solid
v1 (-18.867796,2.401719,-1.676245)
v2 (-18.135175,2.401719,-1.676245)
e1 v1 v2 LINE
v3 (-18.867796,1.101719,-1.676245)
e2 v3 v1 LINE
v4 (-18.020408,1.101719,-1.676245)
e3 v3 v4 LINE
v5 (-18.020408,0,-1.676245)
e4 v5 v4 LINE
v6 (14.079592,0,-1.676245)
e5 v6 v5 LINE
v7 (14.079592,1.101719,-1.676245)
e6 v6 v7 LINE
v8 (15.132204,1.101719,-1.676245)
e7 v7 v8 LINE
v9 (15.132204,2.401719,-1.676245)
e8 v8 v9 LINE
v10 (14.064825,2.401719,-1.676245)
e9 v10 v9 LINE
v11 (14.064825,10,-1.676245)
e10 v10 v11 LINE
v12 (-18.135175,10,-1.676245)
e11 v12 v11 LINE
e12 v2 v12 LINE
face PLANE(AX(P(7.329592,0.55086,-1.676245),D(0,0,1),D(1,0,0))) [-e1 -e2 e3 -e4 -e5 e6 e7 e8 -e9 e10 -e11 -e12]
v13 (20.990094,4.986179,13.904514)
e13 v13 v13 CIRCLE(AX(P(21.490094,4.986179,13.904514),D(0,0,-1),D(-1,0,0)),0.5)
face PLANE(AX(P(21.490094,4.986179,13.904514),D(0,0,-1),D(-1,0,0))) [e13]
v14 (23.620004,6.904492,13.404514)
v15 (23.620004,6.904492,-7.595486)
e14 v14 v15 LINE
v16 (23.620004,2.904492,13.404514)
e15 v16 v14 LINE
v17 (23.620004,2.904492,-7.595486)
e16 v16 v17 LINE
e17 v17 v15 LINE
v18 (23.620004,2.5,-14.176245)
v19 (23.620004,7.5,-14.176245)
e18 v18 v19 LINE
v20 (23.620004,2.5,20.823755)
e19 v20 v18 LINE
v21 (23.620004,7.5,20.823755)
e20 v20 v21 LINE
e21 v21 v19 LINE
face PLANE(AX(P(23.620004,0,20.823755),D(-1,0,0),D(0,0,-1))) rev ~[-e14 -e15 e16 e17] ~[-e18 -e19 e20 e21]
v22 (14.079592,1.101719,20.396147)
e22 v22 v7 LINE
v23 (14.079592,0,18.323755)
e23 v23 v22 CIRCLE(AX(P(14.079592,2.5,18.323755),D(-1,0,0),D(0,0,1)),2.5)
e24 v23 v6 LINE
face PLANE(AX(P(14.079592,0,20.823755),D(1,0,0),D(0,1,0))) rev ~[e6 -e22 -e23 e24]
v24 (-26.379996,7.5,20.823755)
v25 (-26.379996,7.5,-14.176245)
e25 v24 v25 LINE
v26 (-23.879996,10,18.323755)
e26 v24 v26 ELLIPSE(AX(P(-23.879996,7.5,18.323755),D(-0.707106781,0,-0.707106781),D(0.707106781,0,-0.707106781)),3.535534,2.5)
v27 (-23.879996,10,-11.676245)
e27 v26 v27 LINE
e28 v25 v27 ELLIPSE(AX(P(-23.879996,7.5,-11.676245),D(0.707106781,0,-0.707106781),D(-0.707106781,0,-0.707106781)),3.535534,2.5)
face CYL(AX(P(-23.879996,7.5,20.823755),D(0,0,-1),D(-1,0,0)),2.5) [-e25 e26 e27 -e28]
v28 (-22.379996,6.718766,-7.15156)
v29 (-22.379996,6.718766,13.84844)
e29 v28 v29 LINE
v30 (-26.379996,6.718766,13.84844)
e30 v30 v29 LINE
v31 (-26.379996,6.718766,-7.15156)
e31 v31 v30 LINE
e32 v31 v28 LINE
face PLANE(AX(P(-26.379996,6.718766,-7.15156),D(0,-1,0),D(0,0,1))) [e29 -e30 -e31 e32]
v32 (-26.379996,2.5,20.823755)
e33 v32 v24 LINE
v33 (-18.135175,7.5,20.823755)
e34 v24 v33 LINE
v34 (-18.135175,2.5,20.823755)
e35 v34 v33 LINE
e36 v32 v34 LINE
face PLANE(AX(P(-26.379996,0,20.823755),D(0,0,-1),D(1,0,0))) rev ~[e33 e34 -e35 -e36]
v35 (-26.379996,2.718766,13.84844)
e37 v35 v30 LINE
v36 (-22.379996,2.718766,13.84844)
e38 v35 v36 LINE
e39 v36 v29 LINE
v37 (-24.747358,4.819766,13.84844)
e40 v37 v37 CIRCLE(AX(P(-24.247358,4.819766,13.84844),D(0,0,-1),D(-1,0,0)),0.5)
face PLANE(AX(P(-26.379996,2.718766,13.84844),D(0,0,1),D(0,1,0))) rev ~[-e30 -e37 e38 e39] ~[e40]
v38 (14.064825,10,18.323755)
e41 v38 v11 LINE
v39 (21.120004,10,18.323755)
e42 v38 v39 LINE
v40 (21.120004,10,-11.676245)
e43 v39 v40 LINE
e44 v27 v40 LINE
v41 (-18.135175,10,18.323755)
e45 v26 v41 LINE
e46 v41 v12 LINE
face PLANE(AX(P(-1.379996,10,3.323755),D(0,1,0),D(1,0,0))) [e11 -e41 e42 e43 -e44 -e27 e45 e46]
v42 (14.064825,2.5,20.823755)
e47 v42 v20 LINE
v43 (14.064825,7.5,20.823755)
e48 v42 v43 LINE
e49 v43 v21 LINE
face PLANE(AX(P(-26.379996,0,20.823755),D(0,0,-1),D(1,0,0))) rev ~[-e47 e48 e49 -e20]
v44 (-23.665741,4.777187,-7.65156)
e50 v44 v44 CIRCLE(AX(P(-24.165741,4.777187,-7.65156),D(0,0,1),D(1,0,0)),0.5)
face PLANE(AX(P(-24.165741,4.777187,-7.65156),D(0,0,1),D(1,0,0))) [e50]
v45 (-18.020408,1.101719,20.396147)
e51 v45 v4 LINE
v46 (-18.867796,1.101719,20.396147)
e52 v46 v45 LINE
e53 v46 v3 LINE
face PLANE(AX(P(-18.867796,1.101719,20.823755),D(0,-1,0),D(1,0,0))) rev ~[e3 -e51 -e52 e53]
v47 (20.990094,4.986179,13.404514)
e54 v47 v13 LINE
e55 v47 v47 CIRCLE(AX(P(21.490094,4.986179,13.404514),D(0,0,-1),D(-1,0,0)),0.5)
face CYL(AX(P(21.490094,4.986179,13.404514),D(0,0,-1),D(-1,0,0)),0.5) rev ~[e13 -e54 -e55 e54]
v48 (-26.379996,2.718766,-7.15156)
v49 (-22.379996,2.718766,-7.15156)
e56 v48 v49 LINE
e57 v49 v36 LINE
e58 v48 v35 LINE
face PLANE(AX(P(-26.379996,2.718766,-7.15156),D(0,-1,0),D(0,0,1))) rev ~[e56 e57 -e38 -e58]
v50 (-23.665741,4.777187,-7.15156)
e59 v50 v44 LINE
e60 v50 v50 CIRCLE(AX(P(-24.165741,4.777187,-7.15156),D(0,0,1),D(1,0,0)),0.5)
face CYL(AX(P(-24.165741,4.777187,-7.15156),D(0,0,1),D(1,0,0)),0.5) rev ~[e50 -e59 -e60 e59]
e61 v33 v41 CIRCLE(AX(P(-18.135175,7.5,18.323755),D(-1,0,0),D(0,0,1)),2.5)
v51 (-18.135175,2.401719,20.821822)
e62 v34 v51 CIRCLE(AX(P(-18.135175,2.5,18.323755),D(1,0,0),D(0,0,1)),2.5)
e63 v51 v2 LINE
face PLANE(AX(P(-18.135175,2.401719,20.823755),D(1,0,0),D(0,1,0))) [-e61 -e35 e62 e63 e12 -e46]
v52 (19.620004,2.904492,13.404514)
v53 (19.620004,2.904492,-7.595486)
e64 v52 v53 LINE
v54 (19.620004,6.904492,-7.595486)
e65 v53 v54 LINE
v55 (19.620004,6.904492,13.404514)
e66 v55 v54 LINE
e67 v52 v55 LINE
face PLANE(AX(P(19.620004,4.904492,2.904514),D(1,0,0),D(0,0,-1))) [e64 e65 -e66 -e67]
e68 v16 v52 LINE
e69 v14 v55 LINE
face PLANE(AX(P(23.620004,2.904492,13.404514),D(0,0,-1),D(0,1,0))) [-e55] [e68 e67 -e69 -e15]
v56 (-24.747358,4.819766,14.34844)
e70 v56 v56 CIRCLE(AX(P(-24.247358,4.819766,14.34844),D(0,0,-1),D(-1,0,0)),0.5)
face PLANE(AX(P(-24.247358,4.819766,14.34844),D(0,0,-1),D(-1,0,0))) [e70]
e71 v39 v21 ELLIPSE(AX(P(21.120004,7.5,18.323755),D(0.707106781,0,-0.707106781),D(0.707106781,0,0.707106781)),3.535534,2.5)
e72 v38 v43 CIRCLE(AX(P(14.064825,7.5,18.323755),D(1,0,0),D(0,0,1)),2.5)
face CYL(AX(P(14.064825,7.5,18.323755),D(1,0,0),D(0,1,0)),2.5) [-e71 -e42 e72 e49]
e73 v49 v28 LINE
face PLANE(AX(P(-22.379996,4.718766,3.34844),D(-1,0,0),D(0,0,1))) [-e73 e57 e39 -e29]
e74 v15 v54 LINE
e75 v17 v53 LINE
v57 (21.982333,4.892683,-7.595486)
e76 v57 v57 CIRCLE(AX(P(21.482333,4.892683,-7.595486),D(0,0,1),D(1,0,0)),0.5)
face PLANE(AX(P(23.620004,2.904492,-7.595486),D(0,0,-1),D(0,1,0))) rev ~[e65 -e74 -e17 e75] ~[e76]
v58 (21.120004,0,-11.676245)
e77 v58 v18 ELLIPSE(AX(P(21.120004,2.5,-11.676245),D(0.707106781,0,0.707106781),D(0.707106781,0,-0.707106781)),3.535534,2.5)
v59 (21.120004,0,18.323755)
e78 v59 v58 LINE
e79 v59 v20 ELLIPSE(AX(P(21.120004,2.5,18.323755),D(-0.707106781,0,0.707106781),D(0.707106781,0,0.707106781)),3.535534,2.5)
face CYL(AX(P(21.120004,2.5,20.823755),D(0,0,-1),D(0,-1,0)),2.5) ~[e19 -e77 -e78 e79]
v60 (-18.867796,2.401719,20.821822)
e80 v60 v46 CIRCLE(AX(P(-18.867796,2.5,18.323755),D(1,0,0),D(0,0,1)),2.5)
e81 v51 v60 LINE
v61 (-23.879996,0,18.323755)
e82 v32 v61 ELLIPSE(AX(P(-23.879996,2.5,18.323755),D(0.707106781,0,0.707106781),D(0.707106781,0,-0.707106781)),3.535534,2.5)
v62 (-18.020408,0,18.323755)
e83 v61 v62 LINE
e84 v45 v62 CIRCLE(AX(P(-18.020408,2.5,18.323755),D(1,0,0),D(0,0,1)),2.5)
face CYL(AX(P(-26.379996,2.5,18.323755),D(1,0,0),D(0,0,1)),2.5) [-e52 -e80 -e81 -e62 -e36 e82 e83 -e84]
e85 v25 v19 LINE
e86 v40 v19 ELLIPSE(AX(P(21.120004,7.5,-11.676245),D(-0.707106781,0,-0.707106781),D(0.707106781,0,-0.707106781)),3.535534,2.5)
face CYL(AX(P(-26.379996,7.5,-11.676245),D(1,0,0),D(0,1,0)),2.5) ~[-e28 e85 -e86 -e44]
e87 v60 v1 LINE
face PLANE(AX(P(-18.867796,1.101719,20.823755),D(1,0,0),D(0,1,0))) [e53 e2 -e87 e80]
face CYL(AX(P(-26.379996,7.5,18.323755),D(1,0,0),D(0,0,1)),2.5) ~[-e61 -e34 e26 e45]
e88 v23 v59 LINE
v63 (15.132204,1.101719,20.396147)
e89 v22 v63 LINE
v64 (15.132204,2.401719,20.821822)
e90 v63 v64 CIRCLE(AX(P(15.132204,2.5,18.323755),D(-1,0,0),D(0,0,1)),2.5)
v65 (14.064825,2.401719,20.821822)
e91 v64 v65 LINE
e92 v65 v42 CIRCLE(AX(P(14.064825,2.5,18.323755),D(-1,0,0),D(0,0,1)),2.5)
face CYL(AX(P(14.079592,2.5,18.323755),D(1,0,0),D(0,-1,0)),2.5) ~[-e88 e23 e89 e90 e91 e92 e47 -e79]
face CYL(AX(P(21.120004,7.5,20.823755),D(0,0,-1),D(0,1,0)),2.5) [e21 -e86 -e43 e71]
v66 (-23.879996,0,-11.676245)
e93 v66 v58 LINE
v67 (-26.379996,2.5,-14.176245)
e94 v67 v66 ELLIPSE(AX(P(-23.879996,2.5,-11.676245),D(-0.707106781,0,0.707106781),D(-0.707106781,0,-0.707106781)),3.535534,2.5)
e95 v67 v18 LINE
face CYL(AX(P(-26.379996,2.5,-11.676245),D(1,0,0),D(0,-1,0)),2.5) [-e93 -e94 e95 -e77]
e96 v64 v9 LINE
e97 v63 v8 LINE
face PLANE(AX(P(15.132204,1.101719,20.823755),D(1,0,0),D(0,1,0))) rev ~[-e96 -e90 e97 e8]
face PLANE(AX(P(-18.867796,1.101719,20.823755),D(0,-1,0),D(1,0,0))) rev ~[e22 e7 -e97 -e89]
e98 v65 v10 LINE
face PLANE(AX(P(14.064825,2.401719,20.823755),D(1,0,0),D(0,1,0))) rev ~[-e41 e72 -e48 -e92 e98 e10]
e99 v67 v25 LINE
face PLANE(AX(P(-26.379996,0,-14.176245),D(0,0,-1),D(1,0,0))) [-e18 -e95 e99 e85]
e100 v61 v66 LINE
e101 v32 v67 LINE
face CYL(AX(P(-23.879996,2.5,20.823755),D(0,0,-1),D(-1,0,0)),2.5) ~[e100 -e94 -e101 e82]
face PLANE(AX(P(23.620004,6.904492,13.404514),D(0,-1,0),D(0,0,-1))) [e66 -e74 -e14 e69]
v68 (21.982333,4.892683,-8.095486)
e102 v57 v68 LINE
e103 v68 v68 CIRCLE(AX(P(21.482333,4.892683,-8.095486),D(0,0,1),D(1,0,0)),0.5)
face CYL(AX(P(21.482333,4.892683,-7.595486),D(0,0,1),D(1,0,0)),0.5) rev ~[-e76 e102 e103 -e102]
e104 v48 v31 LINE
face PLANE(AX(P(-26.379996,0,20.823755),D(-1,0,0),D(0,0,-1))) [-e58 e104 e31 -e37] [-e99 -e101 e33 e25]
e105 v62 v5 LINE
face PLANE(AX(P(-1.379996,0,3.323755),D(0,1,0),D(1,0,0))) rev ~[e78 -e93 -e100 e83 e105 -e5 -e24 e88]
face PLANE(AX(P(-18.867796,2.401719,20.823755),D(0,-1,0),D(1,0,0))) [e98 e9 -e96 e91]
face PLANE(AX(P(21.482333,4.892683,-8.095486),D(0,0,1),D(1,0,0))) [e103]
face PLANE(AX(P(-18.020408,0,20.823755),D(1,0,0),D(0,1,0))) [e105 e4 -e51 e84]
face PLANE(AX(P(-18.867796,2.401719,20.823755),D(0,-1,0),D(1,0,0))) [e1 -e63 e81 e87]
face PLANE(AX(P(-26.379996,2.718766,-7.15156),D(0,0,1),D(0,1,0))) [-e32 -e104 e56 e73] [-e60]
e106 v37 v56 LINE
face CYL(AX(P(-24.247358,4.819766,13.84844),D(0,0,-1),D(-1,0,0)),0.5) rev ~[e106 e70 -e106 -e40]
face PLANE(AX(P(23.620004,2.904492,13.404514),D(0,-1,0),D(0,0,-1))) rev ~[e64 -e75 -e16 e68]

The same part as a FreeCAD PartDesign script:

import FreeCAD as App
import Part
import Sketcher
from FreeCAD import Vector
Q = App.Units.Quantity


def edges_at(feature, points):
    """Names of the edges that pass closest to the given points."""
    edges = feature.Shape.Edges
    near = lambda p: min(range(len(edges)), key=lambda i: edges[i].distToShape(Part.Vertex(*p))[0])
    return sorted({f"Edge{near(p) + 1}" for p in points})


def add_polygon(sketch, points):
    """Adds a closed chain of lines whose ends are joined by coincident constraints."""
    first, n = sketch.GeometryCount, len(points)
    for a, b in zip(points, points[1:] + points[:1]):
        sketch.addGeometry(Part.LineSegment(App.Vector(*a, 0), App.Vector(*b, 0)), False)
    for i in range(n):
        sketch.addConstraint(Sketcher.Constraint("Coincident", first + i, 2, first + (i + 1) % n, 1))

doc = App.newDocument("Part")
body = doc.addObject("PartDesign::Body", "Body")

sketch1 = body.newObject("Sketcher::SketchObject", "Sketch")
sketch1.AttachmentSupport = (doc.getObject("XZ_Plane"), [""])
sketch1.MapMode = "FlatFace"
add_polygon(sketch1, [(-26, -14), (-26, 21), (24, 21), (24, -14)])
sketch1.addConstraint([
    Sketcher.Constraint("Vertical", 0),
    Sketcher.Constraint("Horizontal", 1),
    Sketcher.Constraint("Vertical", 2),
    Sketcher.Constraint("Horizontal", 3),
    Sketcher.Constraint("DistanceX", 1, 1, 1, 2, Q("50 mm")),
    Sketcher.Constraint("DistanceY", 0, 1, 0, 2, Q("35 mm")),
    Sketcher.Constraint("DistanceX", 0, 2, -1, 1, Q("26.379996 mm")),
    Sketcher.Constraint("DistanceY", -1, 1, 0, 2, Q("20.823755 mm")),
])
pad1 = body.newObject("PartDesign::Pad", "Pad")
pad1.Profile = sketch1
pad1.Length = 10
pad1.Reversed = True

sketch2 = body.newObject("Sketcher::SketchObject", "Sketch001")
sketch2.AttachmentSupport = (doc.getObject("XY_Plane"), [""])
sketch2.MapMode = "FlatFace"
sketch2.AttachmentOffset = App.Placement(Vector(0, 0, 20.823755), App.Rotation())
add_polygon(sketch2, [(-18.9, 2.4), (-18.9, 1.1), (15.1, 1.1), (15.1, 2.4)])
sketch2.addConstraint([
    Sketcher.Constraint("Vertical", 0),
    Sketcher.Constraint("Horizontal", 1),
    Sketcher.Constraint("Vertical", 2),
    Sketcher.Constraint("Horizontal", 3),
    Sketcher.Constraint("DistanceX", 1, 1, 1, 2, Q("34 mm")),
    Sketcher.Constraint("DistanceY", 0, 2, 0, 1, Q("1.3 mm")),
    Sketcher.Constraint("DistanceY", -1, 1, 0, 2, Q("1.101719 mm")),
    Sketcher.Constraint("DistanceX", 0, 2, -1, 1, Q("18.867796 mm")),
])
pocket1 = body.newObject("PartDesign::Pocket", "Pocket")
pocket1.Profile = sketch2
pocket1.Length = 22.5

sketch3 = body.newObject("Sketcher::SketchObject", "Sketch002")
sketch3.AttachmentSupport = (doc.getObject("XY_Plane"), [""])
sketch3.MapMode = "FlatFace"
sketch3.AttachmentOffset = App.Placement(Vector(0, 0, 20.823755), App.Rotation())
add_polygon(sketch3, [(-1, 10), (-1, 2), (14, 2), (14, 10)])
sketch3.addConstraint([
    Sketcher.Constraint("Vertical", 0),
    Sketcher.Constraint("Horizontal", 1),
    Sketcher.Constraint("Vertical", 2),
    Sketcher.Constraint("Horizontal", 3),
    Sketcher.Constraint("DistanceX", 1, 1, 1, 2, Q("15 mm")),
    Sketcher.Constraint("DistanceY", -1, 1, 2, 2, Q("10 mm")),
    Sketcher.Constraint("DistanceY", 0, 2, 0, 1, Q("7.598281 mm")),
    Sketcher.Constraint("DistanceX", 0, 2, -1, 1, Q("0.935175 mm")),
])
pocket2 = body.newObject("PartDesign::Pocket", "Pocket001")
pocket2.Profile = sketch3
pocket2.Length = 22.5

sketch4 = body.newObject("Sketcher::SketchObject", "Sketch003")
sketch4.AttachmentSupport = (doc.getObject("XY_Plane"), [""])
sketch4.MapMode = "FlatFace"
sketch4.AttachmentOffset = App.Placement(Vector(0, 0, 20.823755), App.Rotation())
add_polygon(sketch4, [(-18, 10), (-18, 2), (-1, 2), (-1, 10)])
sketch4.addConstraint([
    Sketcher.Constraint("Vertical", 0),
    Sketcher.Constraint("Horizontal", 1),
    Sketcher.Constraint("Vertical", 2),
    Sketcher.Constraint("Horizontal", 3),
    Sketcher.Constraint("DistanceX", 1, 1, 1, 2, Q("17.2 mm")),
    Sketcher.Constraint("DistanceY", -1, 1, 2, 2, Q("10 mm")),
    Sketcher.Constraint("DistanceY", 0, 2, 0, 1, Q("7.598281 mm")),
    Sketcher.Constraint("DistanceX", 0, 2, -1, 1, Q("18.135175 mm")),
])
pocket3 = body.newObject("PartDesign::Pocket", "Pocket002")
pocket3.Profile = sketch4
pocket3.Length = 22.5

sketch5 = body.newObject("Sketcher::SketchObject", "Sketch004")
sketch5.AttachmentSupport = (doc.getObject("XY_Plane"), [""])
sketch5.MapMode = "FlatFace"
sketch5.AttachmentOffset = App.Placement(Vector(0, 0, 20.823755), App.Rotation())
add_polygon(sketch5, [(0.6, 1.1), (0.6, 0), (14.1, 0), (14.1, 1.1)])
sketch5.addConstraint([
    Sketcher.Constraint("Vertical", 0),
    Sketcher.Constraint("Horizontal", 1),
    Sketcher.Constraint("Vertical", 2),
    Sketcher.Constraint("Horizontal", 3),
    Sketcher.Constraint("PointOnObject", 0, 2, -1),
    Sketcher.Constraint("DistanceX", 1, 1, 1, 2, Q("13.5 mm")),
    Sketcher.Constraint("DistanceY", 0, 2, 0, 1, Q("1.101719 mm")),
    Sketcher.Constraint("DistanceX", -1, 1, 0, 2, Q("0.579592 mm")),
])
pocket4 = body.newObject("PartDesign::Pocket", "Pocket003")
pocket4.Profile = sketch5
pocket4.Length = 22.5

sketch6 = body.newObject("Sketcher::SketchObject", "Sketch005")
sketch6.AttachmentSupport = (doc.getObject("XY_Plane"), [""])
sketch6.MapMode = "FlatFace"
sketch6.AttachmentOffset = App.Placement(Vector(0, 0, 20.823755), App.Rotation())
add_polygon(sketch6, [(-18, 1.1), (-18, 0), (0.6, 0), (0.6, 1.1)])
sketch6.addConstraint([
    Sketcher.Constraint("Vertical", 0),
    Sketcher.Constraint("Horizontal", 1),
    Sketcher.Constraint("Vertical", 2),
    Sketcher.Constraint("Horizontal", 3),
    Sketcher.Constraint("PointOnObject", 0, 2, -1),
    Sketcher.Constraint("DistanceX", 1, 1, 1, 2, Q("18.6 mm")),
    Sketcher.Constraint("DistanceY", 0, 2, 0, 1, Q("1.101719 mm")),
    Sketcher.Constraint("DistanceX", 0, 2, -1, 1, Q("18.020408 mm")),
])
pocket5 = body.newObject("PartDesign::Pocket", "Pocket004")
pocket5.Profile = sketch6
pocket5.Length = 22.5

sketch7 = body.newObject("Sketcher::SketchObject", "Sketch006")
sketch7.AttachmentSupport = (doc.getObject("YZ_Plane"), [""])
sketch7.MapMode = "FlatFace"
sketch7.AttachmentOffset = App.Placement(Vector(0, 0, -26.379996), App.Rotation())
add_polygon(sketch7, [(6.7, -7.2), (2.7, -7.2), (2.7, 13.8), (6.7, 13.8)])
sketch7.addConstraint([
    Sketcher.Constraint("Horizontal", 0),
    Sketcher.Constraint("Vertical", 1),
    Sketcher.Constraint("Horizontal", 2),
    Sketcher.Constraint("Vertical", 3),
    Sketcher.Constraint("DistanceX", 0, 2, 0, 1, Q("4 mm")),
    Sketcher.Constraint("DistanceY", 1, 1, 1, 2, Q("21 mm")),
    Sketcher.Constraint("DistanceY", 0, 2, -1, 1, Q("7.15156 mm")),
    Sketcher.Constraint("DistanceX", -1, 1, 0, 2, Q("2.718766 mm")),
])
pocket6 = body.newObject("PartDesign::Pocket", "Pocket005")
pocket6.Profile = sketch7
pocket6.Length = 4
pocket6.Reversed = True

sketch8 = body.newObject("Sketcher::SketchObject", "Sketch007")
sketch8.AttachmentSupport = (doc.getObject("XY_Plane"), [""])
sketch8.MapMode = "FlatFace"
sketch8.AttachmentOffset = App.Placement(Vector(0, 0, -7.15156), App.Rotation())
sketch8.addGeometry(Part.Circle(Vector(-24.2, 4.8, 0), Vector(0, 0, 1), 0.5), False)
sketch8.addConstraint([
    Sketcher.Constraint("Diameter", 0, Q("1 mm")),
    Sketcher.Constraint("DistanceX", 0, 3, -1, 1, Q("24.165741 mm")),
    Sketcher.Constraint("DistanceY", -1, 1, 0, 3, Q("4.777187 mm")),
])
pocket7 = body.newObject("PartDesign::Pocket", "Pocket006")
pocket7.Profile = sketch8
pocket7.Length = 0.5

sketch9 = body.newObject("Sketcher::SketchObject", "Sketch008")
sketch9.AttachmentSupport = (doc.getObject("XY_Plane"), [""])
sketch9.MapMode = "FlatFace"
sketch9.AttachmentOffset = App.Placement(Vector(0, 0, 13.84844), App.Rotation())
sketch9.addGeometry(Part.Circle(Vector(-24.2, 4.8, 0), Vector(0, 0, 1), 0.5), False)
sketch9.addConstraint([
    Sketcher.Constraint("Diameter", 0, Q("1 mm")),
    Sketcher.Constraint("DistanceX", 0, 3, -1, 1, Q("24.247358 mm")),
    Sketcher.Constraint("DistanceY", -1, 1, 0, 3, Q("4.819766 mm")),
])
pocket8 = body.newObject("PartDesign::Pocket", "Pocket007")
pocket8.Profile = sketch9
pocket8.Length = 0.5
pocket8.Reversed = True

sketch10 = body.newObject("Sketcher::SketchObject", "Sketch009")
sketch10.AttachmentSupport = (doc.getObject("YZ_Plane"), [""])
sketch10.MapMode = "FlatFace"
sketch10.AttachmentOffset = App.Placement(Vector(0, 0, 23.620004), App.Rotation())
add_polygon(sketch10, [(6.9, 13.4), (2.9, 13.4), (2.9, -7.6), (6.9, -7.6)])
sketch10.addConstraint([
    Sketcher.Constraint("Horizontal", 0),
    Sketcher.Constraint("Vertical", 1),
    Sketcher.Constraint("Horizontal", 2),
    Sketcher.Constraint("Vertical", 3),
    Sketcher.Constraint("DistanceX", 0, 2, 0, 1, Q("4 mm")),
    Sketcher.Constraint("DistanceY", 1, 2, 1, 1, Q("21 mm")),
    Sketcher.Constraint("DistanceX", -1, 1, 0, 2, Q("2.904492 mm")),
    Sketcher.Constraint("DistanceY", -1, 1, 0, 2, Q("13.404514 mm")),
])
pocket9 = body.newObject("PartDesign::Pocket", "Pocket008")
pocket9.Profile = sketch10
pocket9.Length = 4

sketch11 = body.newObject("Sketcher::SketchObject", "Sketch010")
sketch11.AttachmentSupport = (doc.getObject("XY_Plane"), [""])
sketch11.MapMode = "FlatFace"
sketch11.AttachmentOffset = App.Placement(Vector(0, 0, 13.404514), App.Rotation())
sketch11.addGeometry(Part.Circle(Vector(21.5, 5, 0), Vector(0, 0, 1), 0.5), False)
sketch11.addConstraint([
    Sketcher.Constraint("Diameter", 0, Q("1 mm")),
    Sketcher.Constraint("DistanceY", -1, 1, 0, 3, Q("4.986179 mm")),
    Sketcher.Constraint("DistanceX", -1, 1, 0, 3, Q("21.490094 mm")),
])
pocket10 = body.newObject("PartDesign::Pocket", "Pocket009")
pocket10.Profile = sketch11
pocket10.Length = 0.5
pocket10.Reversed = True

sketch12 = body.newObject("Sketcher::SketchObject", "Sketch011")
sketch12.AttachmentSupport = (doc.getObject("XY_Plane"), [""])
sketch12.MapMode = "FlatFace"
sketch12.AttachmentOffset = App.Placement(Vector(0, 0, -7.595486), App.Rotation())
sketch12.addGeometry(Part.Circle(Vector(21.5, 4.9, 0), Vector(0, 0, 1), 0.5), False)
sketch12.addConstraint([
    Sketcher.Constraint("Diameter", 0, Q("1 mm")),
    Sketcher.Constraint("DistanceX", -1, 1, 0, 3, Q("21.482333 mm")),
    Sketcher.Constraint("DistanceY", -1, 1, 0, 3, Q("4.892683 mm")),
])
pocket11 = body.newObject("PartDesign::Pocket", "Pocket010")
pocket11.Profile = sketch12
pocket11.Length = 0.5
doc.recompute()

fillet = body.newObject("PartDesign::Fillet", "Fillet")
fillet.Base = (pocket11, edges_at(pocket11, [
    (-22.2, 0, 20.824),
    (18.85, 0, 20.824),
    (-26.38, 0, 3.324),
    (-26.38, 10, 3.324),
    (-22.258, 10, 20.824),
    (18.842, 10, 20.824),
    (-1.38, 0, -14.176),
    (-1.38, 10, -14.176),
    (23.62, 0, 3.324),
    (23.62, 10, 3.324),
]))
fillet.Radius = 2.5

doc.recompute()
